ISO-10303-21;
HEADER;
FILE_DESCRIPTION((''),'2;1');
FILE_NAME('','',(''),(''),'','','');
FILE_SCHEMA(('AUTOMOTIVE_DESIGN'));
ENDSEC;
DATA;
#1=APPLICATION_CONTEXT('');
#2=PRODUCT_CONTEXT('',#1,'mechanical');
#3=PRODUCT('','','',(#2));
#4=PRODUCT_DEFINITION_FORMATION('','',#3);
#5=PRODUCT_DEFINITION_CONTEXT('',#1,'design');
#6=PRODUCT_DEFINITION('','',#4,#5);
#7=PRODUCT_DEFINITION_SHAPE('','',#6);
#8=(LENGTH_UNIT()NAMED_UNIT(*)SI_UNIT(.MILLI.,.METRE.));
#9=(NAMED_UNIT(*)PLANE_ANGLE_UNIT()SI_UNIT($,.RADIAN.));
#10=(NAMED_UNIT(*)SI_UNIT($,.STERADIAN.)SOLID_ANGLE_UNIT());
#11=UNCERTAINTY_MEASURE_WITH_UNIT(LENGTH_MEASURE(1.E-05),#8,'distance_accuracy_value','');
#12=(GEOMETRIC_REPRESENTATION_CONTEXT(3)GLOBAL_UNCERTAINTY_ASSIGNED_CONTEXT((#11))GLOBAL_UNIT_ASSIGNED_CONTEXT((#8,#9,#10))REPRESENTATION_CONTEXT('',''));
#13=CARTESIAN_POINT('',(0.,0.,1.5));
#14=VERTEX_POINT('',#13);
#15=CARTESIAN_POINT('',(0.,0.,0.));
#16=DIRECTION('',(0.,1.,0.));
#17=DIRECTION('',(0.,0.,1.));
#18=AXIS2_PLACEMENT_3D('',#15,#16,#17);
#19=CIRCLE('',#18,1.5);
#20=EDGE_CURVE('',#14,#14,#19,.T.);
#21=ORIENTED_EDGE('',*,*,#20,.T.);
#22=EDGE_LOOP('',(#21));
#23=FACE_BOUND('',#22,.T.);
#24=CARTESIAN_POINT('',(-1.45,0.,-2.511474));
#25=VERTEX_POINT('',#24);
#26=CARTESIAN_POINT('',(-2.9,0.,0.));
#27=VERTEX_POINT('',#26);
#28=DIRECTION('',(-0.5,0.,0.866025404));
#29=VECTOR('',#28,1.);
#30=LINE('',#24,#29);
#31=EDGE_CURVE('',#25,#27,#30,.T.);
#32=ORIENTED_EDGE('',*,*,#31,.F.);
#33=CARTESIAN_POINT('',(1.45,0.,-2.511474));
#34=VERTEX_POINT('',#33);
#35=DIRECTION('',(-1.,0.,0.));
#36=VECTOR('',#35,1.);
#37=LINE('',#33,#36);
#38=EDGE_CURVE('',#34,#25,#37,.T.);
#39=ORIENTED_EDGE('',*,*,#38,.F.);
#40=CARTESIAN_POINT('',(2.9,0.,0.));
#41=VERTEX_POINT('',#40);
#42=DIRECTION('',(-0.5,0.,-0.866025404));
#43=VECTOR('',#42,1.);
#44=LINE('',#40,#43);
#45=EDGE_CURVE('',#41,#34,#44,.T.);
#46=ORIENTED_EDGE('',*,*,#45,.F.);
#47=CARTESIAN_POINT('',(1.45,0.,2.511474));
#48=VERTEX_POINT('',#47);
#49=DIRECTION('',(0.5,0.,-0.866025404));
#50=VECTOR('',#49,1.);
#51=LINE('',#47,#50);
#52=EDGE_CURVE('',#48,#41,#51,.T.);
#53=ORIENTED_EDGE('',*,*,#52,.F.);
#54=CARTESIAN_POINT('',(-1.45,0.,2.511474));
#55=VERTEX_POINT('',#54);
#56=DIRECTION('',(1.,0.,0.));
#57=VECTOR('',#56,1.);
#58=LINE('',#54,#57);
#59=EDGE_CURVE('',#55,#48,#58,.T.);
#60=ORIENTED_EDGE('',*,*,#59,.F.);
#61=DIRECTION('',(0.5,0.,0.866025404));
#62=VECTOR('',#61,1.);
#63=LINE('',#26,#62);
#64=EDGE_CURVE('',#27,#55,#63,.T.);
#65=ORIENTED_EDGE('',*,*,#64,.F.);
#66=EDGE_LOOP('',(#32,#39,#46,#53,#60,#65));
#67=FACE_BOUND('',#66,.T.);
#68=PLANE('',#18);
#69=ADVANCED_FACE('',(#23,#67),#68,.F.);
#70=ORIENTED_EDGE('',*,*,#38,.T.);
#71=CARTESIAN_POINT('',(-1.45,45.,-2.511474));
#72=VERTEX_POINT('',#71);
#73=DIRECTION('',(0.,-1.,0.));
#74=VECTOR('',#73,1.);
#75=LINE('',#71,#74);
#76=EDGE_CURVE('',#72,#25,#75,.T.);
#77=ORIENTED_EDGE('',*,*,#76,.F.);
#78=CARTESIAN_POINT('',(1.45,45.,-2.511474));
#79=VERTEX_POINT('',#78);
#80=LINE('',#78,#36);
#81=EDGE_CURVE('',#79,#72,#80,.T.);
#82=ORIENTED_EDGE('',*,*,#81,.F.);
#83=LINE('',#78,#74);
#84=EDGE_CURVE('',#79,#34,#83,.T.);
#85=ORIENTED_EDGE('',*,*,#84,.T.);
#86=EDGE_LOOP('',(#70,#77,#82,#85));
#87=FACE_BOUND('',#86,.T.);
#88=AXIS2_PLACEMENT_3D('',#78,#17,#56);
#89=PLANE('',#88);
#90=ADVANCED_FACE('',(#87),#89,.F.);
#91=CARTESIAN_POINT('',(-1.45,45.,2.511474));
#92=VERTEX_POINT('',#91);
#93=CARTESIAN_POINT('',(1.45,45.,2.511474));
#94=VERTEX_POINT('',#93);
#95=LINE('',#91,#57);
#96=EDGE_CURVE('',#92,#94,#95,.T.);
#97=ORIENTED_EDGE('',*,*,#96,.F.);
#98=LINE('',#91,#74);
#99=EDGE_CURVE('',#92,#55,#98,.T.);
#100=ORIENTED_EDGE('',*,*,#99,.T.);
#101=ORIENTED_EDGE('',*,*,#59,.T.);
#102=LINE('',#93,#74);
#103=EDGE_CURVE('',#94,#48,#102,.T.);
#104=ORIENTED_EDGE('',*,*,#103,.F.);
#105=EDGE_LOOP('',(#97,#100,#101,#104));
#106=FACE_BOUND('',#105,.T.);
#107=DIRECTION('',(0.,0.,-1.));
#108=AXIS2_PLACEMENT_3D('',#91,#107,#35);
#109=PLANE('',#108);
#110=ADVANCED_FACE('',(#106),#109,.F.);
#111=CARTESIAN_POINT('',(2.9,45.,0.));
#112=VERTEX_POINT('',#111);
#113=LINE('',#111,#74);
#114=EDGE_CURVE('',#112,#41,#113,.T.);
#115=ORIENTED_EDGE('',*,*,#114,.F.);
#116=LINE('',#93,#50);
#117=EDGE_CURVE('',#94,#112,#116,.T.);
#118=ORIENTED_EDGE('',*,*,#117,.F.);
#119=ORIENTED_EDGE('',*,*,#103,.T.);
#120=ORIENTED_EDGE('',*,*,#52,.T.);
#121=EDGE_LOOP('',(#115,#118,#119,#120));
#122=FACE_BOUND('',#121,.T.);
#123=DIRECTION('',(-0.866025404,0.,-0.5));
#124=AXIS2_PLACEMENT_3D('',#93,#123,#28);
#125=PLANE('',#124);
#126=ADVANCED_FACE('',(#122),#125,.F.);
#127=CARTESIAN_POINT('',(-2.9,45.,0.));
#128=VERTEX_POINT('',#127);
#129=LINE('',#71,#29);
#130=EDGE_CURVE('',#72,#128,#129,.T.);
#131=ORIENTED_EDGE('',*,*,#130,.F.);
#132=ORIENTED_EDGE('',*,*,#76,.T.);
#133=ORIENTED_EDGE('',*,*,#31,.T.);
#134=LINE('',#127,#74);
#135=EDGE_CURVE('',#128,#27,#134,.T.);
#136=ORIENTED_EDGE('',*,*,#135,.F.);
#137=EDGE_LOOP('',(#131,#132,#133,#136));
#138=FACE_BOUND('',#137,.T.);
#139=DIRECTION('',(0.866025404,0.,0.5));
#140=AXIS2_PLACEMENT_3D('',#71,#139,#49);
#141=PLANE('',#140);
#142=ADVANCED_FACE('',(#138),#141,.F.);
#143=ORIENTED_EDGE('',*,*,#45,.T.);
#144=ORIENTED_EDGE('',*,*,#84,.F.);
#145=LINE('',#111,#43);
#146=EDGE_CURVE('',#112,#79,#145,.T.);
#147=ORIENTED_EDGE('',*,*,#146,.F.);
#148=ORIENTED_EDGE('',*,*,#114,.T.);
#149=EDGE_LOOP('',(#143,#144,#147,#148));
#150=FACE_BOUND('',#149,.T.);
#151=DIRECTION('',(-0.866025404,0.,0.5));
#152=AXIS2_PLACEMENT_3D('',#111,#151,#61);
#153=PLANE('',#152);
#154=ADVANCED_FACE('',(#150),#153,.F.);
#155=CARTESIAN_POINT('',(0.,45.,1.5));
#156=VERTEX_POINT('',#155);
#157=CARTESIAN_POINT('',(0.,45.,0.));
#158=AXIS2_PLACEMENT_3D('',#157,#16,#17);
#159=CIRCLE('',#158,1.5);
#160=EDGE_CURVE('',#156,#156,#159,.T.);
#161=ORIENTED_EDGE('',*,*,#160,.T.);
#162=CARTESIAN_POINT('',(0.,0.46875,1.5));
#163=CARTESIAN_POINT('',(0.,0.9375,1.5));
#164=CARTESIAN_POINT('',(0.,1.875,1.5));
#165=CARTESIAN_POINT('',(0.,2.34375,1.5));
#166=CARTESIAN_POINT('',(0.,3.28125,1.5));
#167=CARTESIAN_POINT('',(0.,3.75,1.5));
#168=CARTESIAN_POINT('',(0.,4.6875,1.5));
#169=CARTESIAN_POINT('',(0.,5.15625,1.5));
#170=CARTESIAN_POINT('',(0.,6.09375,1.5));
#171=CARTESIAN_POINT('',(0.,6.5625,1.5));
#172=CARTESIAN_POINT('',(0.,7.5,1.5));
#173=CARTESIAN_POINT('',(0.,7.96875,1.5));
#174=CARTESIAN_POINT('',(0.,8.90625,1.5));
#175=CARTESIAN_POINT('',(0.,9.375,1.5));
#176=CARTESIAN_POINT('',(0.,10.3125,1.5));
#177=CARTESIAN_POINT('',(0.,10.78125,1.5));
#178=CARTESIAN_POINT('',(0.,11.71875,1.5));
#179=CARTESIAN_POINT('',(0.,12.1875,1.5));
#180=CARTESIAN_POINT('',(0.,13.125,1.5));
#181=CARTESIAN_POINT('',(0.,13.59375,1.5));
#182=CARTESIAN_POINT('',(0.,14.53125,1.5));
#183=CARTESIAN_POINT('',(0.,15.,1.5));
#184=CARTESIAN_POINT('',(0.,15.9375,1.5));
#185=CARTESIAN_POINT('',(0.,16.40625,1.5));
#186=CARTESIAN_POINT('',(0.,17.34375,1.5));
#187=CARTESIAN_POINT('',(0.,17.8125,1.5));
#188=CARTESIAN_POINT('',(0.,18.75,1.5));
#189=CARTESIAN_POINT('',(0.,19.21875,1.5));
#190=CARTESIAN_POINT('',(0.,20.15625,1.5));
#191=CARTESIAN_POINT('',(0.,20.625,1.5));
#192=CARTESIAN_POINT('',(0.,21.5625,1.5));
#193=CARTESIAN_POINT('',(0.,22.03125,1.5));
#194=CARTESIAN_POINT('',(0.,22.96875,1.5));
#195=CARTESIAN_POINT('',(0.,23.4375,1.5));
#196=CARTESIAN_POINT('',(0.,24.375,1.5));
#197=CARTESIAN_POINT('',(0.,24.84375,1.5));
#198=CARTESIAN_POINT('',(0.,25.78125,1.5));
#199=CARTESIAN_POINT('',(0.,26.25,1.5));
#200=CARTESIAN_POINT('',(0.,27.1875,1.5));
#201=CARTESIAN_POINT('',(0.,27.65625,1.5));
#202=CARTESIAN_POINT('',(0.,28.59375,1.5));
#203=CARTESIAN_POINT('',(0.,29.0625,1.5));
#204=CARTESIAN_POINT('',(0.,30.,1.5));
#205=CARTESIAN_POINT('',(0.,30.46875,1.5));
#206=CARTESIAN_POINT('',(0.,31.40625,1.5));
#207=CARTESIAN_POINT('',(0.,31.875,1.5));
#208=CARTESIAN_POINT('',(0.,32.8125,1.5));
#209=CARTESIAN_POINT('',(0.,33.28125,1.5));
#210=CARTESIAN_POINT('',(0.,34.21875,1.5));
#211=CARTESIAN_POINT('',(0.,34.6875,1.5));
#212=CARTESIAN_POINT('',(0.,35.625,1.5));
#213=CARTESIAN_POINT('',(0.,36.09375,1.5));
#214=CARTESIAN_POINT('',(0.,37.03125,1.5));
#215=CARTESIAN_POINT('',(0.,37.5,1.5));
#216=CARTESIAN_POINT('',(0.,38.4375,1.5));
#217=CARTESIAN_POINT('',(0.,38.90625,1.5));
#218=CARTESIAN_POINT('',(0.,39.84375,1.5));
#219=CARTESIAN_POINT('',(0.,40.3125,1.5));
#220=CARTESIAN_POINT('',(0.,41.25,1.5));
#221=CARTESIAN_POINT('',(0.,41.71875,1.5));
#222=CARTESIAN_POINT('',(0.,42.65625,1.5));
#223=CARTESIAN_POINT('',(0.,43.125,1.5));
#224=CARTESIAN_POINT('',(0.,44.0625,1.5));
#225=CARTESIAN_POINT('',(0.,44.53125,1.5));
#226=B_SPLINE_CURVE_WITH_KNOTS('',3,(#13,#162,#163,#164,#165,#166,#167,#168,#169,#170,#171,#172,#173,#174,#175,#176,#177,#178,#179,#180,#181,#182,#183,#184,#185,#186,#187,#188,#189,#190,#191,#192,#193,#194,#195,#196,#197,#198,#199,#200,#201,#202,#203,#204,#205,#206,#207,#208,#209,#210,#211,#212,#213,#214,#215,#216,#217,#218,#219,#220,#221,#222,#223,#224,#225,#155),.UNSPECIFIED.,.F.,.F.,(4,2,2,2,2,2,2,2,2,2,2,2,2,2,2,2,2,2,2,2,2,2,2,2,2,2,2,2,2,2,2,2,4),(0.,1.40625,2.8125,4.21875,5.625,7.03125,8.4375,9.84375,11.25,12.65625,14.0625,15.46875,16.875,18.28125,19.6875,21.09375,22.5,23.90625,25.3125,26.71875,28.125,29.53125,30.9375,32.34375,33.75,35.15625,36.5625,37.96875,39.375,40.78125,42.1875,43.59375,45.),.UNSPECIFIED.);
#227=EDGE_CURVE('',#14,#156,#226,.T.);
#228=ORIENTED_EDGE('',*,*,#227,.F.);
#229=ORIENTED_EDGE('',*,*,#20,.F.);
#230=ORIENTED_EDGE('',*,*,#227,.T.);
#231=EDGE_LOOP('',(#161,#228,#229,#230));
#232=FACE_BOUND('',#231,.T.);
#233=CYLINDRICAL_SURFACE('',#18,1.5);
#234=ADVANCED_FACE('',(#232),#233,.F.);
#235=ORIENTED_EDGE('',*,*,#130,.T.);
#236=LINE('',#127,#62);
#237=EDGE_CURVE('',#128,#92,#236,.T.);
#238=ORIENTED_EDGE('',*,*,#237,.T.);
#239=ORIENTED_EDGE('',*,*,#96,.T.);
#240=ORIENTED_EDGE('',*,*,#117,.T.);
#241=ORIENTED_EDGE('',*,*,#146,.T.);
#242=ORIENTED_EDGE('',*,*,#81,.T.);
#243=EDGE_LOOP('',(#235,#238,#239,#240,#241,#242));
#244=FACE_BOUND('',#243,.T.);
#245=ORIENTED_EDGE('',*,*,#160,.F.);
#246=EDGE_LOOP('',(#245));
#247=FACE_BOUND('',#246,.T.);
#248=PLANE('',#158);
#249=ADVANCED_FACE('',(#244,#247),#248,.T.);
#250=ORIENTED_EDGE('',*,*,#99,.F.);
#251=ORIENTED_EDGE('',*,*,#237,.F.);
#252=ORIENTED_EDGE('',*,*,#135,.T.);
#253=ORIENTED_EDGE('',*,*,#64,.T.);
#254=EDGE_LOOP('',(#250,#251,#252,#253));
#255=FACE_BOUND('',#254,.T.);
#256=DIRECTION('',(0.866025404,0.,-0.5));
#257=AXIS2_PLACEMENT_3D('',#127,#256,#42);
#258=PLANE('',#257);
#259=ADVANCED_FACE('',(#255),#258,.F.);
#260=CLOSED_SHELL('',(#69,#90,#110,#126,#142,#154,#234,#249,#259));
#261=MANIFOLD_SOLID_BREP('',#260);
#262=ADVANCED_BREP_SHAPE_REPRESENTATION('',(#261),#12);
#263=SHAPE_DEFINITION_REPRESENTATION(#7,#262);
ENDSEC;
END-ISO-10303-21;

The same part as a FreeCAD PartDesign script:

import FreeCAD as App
import Part
import Sketcher

V = App.Vector
Q = App.Units.Quantity

doc = App.newDocument("Part")
params = doc.addObject("Spreadsheet::Sheet", "Params")
for row, (alias, value) in enumerate([
    ("sketch1_width", "2.9 mm"),
    ("sketch1_length", "2.9 mm"),
    ("pad1_length", "45 mm"),
    ("sketch2_diameter", "3 mm"),
    ("pocket1_length", "45 mm"),
], start=1):
    params.set(f"A{row}", alias)
    params.set(f"B{row}", "=" + value)
    params.setAlias(f"B{row}", alias)

body = doc.addObject("PartDesign::Body", "Body")

sketch1 = doc.addObject("Sketcher::SketchObject", "Sketch")
body.addObject(sketch1)
sketch1.AttachmentSupport = (doc.XZ_Plane, [""])
sketch1.MapMode = "FlatFace"
sketch1.addGeometry([
    Part.LineSegment(V(2.9, 0, 0), V(1.4, -2.5, 0)),
    Part.LineSegment(V(1.4, -2.5, 0), V(-1.4, -2.5, 0)),
    Part.LineSegment(V(-1.4, -2.5, 0), V(-2.9, 0, 0)),
    Part.LineSegment(V(-2.9, 0, 0), V(-1.4, 2.5, 0)),
    Part.LineSegment(V(-1.4, 2.5, 0), V(1.4, 2.5, 0)),
    Part.LineSegment(V(1.4, 2.5, 0), V(2.9, 0, 0)),
], False)
sketch1.addConstraint([
    Sketcher.Constraint("Coincident", 0, 2, 1, 1),
    Sketcher.Constraint("Coincident", 1, 2, 2, 1),
    Sketcher.Constraint("Coincident", 2, 2, 3, 1),
    Sketcher.Constraint("Coincident", 3, 2, 4, 1),
    Sketcher.Constraint("Coincident", 4, 2, 5, 1),
    Sketcher.Constraint("Coincident", 5, 2, 0, 1),
    Sketcher.Constraint("Horizontal", 1),
    Sketcher.Constraint("Horizontal", 4),
    Sketcher.Constraint("Symmetric", 0, 2, 3, 2, -1, 1),
    Sketcher.Constraint("Symmetric", 2, 2, 5, 2, -1, 1),
    Sketcher.Constraint("PointOnObject", 2, 2, -1),
    Sketcher.Constraint("Parallel", 2, 5),
    Sketcher.Constraint("Vertical", 1, 2, 3, 2),
    Sketcher.Constraint("Angle", 0, Q("-120 deg")),
    Sketcher.Constraint("DistanceX", 1, 2, 1, 1, Q("2.9 mm")),
    Sketcher.Constraint("Distance", 0, Q("2.9 mm")),
])
sketch1.setExpression("Constraints[14]", "Params.sketch1_width")
sketch1.setExpression("Constraints[15]", "Params.sketch1_length")
pad1 = doc.addObject("PartDesign::Pad", "Pad")
body.addObject(pad1)
pad1.Profile = sketch1
pad1.setExpression("Length", "Params.pad1_length")
pad1.Reversed = True

sketch2 = doc.addObject("Sketcher::SketchObject", "Sketch001")
body.addObject(sketch2)
sketch2.AttachmentSupport = (doc.XZ_Plane, [""])
sketch2.MapMode = "FlatFace"
sketch2.AttachmentOffset = App.Placement(V(0, 0, -45), App.Rotation())
sketch2.addGeometry(Part.Circle(V(0, 0, 0), V(0, 0, 1), 1.5), False)
sketch2.addConstraint([
    Sketcher.Constraint("Coincident", 0, 3, -1, 1),
    Sketcher.Constraint("Diameter", 0, Q("3 mm")),
])
sketch2.setExpression("Constraints[1]", "Params.sketch2_diameter")
pocket1 = doc.addObject("PartDesign::Pocket", "Pocket")
body.addObject(pocket1)
pocket1.Profile = sketch2
pocket1.setExpression("Length", "Params.pocket1_length")
pocket1.Reversed = True

doc.recompute()
